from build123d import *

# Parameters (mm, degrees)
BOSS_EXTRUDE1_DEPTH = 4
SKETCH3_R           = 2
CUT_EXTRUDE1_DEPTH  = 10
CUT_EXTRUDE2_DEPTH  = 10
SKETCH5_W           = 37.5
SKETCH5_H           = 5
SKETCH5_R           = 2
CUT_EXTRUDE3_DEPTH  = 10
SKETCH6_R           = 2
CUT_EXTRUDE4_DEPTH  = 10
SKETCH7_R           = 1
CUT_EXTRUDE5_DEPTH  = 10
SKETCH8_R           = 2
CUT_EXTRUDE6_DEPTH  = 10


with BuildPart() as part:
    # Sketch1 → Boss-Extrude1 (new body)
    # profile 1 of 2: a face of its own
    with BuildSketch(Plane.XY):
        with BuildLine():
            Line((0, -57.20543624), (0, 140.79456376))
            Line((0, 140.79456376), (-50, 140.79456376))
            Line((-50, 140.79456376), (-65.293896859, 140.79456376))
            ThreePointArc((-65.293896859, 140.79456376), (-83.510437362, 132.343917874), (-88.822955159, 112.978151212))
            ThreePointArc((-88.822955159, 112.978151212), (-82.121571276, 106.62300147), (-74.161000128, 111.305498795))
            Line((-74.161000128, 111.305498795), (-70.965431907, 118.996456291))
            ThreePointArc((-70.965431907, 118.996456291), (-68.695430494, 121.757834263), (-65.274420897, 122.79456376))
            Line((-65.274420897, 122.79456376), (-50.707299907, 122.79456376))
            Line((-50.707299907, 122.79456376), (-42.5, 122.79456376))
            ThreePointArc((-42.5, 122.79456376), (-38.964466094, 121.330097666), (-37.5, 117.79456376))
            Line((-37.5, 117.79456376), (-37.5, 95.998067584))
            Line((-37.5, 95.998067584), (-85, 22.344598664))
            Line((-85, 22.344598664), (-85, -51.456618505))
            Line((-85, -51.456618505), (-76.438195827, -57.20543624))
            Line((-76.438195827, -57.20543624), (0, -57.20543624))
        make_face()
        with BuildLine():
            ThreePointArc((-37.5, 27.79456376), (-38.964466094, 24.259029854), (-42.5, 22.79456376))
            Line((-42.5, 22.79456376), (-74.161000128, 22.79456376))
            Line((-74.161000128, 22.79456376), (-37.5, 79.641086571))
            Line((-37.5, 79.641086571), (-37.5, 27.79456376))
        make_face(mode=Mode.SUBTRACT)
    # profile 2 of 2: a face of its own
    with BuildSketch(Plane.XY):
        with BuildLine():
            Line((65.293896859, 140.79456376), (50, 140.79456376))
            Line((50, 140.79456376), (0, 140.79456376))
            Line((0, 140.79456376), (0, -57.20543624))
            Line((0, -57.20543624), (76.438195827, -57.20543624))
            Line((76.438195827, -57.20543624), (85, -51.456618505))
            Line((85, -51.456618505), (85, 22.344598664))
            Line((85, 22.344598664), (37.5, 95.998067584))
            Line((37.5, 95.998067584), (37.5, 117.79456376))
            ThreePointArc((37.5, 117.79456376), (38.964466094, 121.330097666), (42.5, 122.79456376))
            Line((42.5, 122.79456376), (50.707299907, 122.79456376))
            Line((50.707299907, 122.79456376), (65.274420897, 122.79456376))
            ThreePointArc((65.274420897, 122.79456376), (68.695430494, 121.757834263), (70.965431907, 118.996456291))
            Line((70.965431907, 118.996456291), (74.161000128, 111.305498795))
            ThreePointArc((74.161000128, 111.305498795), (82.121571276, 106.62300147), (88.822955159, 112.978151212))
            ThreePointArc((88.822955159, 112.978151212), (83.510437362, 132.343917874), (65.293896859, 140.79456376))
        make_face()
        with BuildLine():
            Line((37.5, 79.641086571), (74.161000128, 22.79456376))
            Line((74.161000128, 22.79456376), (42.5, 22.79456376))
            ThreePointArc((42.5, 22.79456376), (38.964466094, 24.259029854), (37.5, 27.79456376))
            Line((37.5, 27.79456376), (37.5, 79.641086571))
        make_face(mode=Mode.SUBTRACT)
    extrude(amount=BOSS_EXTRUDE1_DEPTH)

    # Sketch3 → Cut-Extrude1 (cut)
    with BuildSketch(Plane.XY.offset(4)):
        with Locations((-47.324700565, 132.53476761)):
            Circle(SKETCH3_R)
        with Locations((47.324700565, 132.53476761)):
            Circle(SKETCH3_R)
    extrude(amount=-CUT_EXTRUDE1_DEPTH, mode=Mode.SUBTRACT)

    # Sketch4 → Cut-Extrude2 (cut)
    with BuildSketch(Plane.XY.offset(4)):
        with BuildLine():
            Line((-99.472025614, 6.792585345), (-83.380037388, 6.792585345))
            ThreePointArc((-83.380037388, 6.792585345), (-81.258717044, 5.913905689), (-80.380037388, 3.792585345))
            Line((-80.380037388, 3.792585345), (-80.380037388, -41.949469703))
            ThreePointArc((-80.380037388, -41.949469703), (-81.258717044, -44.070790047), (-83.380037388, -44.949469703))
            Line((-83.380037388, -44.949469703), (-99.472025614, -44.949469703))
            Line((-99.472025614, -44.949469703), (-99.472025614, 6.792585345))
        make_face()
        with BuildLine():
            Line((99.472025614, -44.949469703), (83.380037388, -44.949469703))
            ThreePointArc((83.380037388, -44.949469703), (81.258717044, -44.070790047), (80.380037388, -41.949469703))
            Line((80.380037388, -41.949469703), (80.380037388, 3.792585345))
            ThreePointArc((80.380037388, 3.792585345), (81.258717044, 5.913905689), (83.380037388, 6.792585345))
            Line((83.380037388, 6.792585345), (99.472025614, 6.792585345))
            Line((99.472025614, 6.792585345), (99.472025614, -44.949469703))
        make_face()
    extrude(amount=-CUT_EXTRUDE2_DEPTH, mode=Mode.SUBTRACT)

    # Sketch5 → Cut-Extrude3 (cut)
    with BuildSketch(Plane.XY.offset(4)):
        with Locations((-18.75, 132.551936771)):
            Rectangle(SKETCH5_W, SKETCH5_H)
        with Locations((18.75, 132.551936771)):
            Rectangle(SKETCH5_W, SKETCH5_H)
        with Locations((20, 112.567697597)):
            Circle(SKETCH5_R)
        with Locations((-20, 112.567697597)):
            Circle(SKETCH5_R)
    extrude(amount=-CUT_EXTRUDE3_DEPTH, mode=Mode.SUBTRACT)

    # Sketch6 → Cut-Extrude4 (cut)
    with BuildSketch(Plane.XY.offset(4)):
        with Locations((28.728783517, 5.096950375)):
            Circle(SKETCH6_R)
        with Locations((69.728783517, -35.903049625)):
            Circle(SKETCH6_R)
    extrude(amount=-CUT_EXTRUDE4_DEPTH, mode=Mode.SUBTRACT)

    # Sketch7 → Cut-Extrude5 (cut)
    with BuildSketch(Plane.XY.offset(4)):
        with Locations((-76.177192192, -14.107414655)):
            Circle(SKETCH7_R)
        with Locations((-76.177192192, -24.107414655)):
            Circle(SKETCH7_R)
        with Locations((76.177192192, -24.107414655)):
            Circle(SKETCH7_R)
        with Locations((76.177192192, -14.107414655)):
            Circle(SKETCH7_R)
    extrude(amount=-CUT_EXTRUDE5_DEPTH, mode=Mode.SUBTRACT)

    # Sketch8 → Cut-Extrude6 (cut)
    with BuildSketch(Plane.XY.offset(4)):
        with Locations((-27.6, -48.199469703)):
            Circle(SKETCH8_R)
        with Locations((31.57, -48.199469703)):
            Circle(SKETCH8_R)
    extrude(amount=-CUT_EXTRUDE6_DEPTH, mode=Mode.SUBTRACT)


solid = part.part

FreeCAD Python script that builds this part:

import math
import FreeCAD as App
import Part
import Sketcher
from FreeCAD import Vector

doc = App.newDocument("Part")
params = doc.addObject("Spreadsheet::Sheet", "Params")
for row, (alias, value) in enumerate([
    ("sketch1_radius", "5 mm"),
    ("pad1_length", "4 mm"),
    ("sketch2_diameter", "4 mm"),
    ("pocket1_length", "10 mm"),
    ("sketch3_radius", "3 mm"),
    ("pocket2_length", "10 mm"),
    ("sketch4_diameter", "4 mm"),
    ("sketch4_width", "75 mm"),
    ("sketch4_height", "5 mm"),
    ("pocket3_length", "10 mm"),
    ("sketch5_diameter", "4 mm"),
    ("pocket4_length", "10 mm"),
    ("sketch6_diameter", "2 mm"),
    ("pocket5_length", "10 mm"),
    ("sketch7_diameter", "4 mm"),
    ("pocket6_length", "10 mm"),
], start=1):
    params.set(f"A{row}", alias)
    params.set(f"B{row}", "=" + value)
    params.setAlias(f"B{row}", alias)

body = doc.addObject("PartDesign::Body", "Body")

sketch1 = doc.addObject("Sketcher::SketchObject", "Sketch")
body.addObject(sketch1)
sketch1.AttachmentSupport = (doc.XY_Plane, [""])
sketch1.MapMode = "FlatFace"
sketch1.addGeometry([
    Part.LineSegment(Vector(-76, -57, 0), Vector(76, -57, 0)),
    Part.LineSegment(Vector(76, -57, 0), Vector(85, -51, 0)),
    Part.LineSegment(Vector(85, -51, 0), Vector(85, 22, 0)),
    Part.LineSegment(Vector(85, 22, 0), Vector(38, 96, 0)),
    Part.LineSegment(Vector(38, 96, 0), Vector(38, 118, 0)),
    Part.ArcOfCircle(Part.Circle(Vector(42, 118, 0), Vector(0, 0, 1), 5), math.radians(90), math.radians(180)),
    Part.LineSegment(Vector(42, 123, 0), Vector(65, 123, 0)),
    Part.ArcOfCircle(Part.Circle(Vector(65, 117, 0), Vector(0, 0, 1), 6), math.radians(23), math.radians(90)),
    Part.LineSegment(Vector(71, 119, 0), Vector(74, 111, 0)),
    Part.ArcOfCircle(Part.Circle(Vector(81, 114, 0), Vector(0, 0, 1), 8), math.radians(-157), math.radians(-10)),
    Part.ArcOfCircle(Part.Circle(Vector(65, 117, 0), Vector(0, 0, 1), 24), math.radians(-10), math.radians(90)),
    Part.LineSegment(Vector(65, 141, 0), Vector(-65, 141, 0)),
    Part.ArcOfCircle(Part.Circle(Vector(-65, 117, 0), Vector(0, 0, 1), 24), math.radians(90), math.radians(190)),
    Part.ArcOfCircle(Part.Circle(Vector(-81, 114, 0), Vector(0, 0, 1), 8), math.radians(-170), math.radians(-23)),
    Part.LineSegment(Vector(-74, 111, 0), Vector(-71, 119, 0)),
    Part.ArcOfCircle(Part.Circle(Vector(-65, 117, 0), Vector(0, 0, 1), 6), math.radians(90), math.radians(157)),
    Part.LineSegment(Vector(-65, 123, 0), Vector(-42, 123, 0)),
    Part.ArcOfCircle(Part.Circle(Vector(-42, 118, 0), Vector(0, 0, 1), 5), math.radians(0), math.radians(90)),
    Part.LineSegment(Vector(-38, 118, 0), Vector(-38, 96, 0)),
    Part.LineSegment(Vector(-38, 96, 0), Vector(-85, 22, 0)),
    Part.LineSegment(Vector(-85, 22, 0), Vector(-85, -51, 0)),
    Part.LineSegment(Vector(-85, -51, 0), Vector(-76, -57, 0)),
    Part.LineSegment(Vector(-38, 80, 0), Vector(-38, 28, 0)),
    Part.ArcOfCircle(Part.Circle(Vector(-42, 28, 0), Vector(0, 0, 1), 5), math.radians(-90), math.radians(0)),
    Part.LineSegment(Vector(-42, 23, 0), Vector(-74, 23, 0)),
    Part.LineSegment(Vector(-74, 23, 0), Vector(-38, 80, 0)),
    Part.LineSegment(Vector(38, 80, 0), Vector(74, 23, 0)),
    Part.LineSegment(Vector(74, 23, 0), Vector(42, 23, 0)),
    Part.ArcOfCircle(Part.Circle(Vector(42, 28, 0), Vector(0, 0, 1), 5), math.radians(180), math.radians(270)),
    Part.LineSegment(Vector(38, 28, 0), Vector(38, 80, 0)),
], False)
sketch1.addConstraint([
    Sketcher.Constraint("Coincident", 0, 2, 1, 1),
    Sketcher.Constraint("Coincident", 1, 2, 2, 1),
    Sketcher.Constraint("Coincident", 2, 2, 3, 1),
    Sketcher.Constraint("Coincident", 3, 2, 4, 1),
    Sketcher.Constraint("Tangent", 4, 2, 5, 2),
    Sketcher.Constraint("Tangent", 5, 1, 6, 1),
    Sketcher.Constraint("Tangent", 6, 2, 7, 2),
    Sketcher.Constraint("Tangent", 7, 1, 8, 1),
    Sketcher.Constraint("Tangent", 8, 2, 9, 1),
    Sketcher.Constraint("Tangent", 9, 2, 10, 1),
    Sketcher.Constraint("Tangent", 10, 2, 11, 1),
    Sketcher.Constraint("Tangent", 11, 2, 12, 1),
    Sketcher.Constraint("Tangent", 12, 2, 13, 1),
    Sketcher.Constraint("Tangent", 13, 2, 14, 1),
    Sketcher.Constraint("Tangent", 14, 2, 15, 2),
    Sketcher.Constraint("Tangent", 15, 1, 16, 1),
    Sketcher.Constraint("Tangent", 16, 2, 17, 2),
    Sketcher.Constraint("Tangent", 17, 1, 18, 1),
    Sketcher.Constraint("Coincident", 18, 2, 19, 1),
    Sketcher.Constraint("Coincident", 19, 2, 20, 1),
    Sketcher.Constraint("Coincident", 20, 2, 21, 1),
    Sketcher.Constraint("Coincident", 21, 2, 0, 1),
    Sketcher.Constraint("Tangent", 22, 2, 23, 2),
    Sketcher.Constraint("Tangent", 23, 1, 24, 1),
    Sketcher.Constraint("Coincident", 24, 2, 25, 1),
    Sketcher.Constraint("Coincident", 25, 2, 22, 1),
    Sketcher.Constraint("Coincident", 26, 2, 27, 1),
    Sketcher.Constraint("Tangent", 27, 2, 28, 2),
    Sketcher.Constraint("Tangent", 28, 1, 29, 1),
    Sketcher.Constraint("Coincident", 29, 2, 26, 1),
    Sketcher.Constraint("Horizontal", 0),
    Sketcher.Constraint("Vertical", 2),
    Sketcher.Constraint("Vertical", 4),
    Sketcher.Constraint("Horizontal", 6),
    Sketcher.Constraint("Horizontal", 11),
    Sketcher.Constraint("Horizontal", 16),
    Sketcher.Constraint("Vertical", 18),
    Sketcher.Constraint("Vertical", 20),
    Sketcher.Constraint("Vertical", 22),
    Sketcher.Constraint("Horizontal", 24),
    Sketcher.Constraint("Horizontal", 27),
    Sketcher.Constraint("Vertical", 29),
    Sketcher.Constraint("Equal", 10, 12),
    Sketcher.Constraint("Equal", 9, 13),
    Sketcher.Constraint("Equal", 7, 15),
    Sketcher.Constraint("Equal", 5, 17),
    Sketcher.Constraint("Equal", 17, 23),
    Sketcher.Constraint("Equal", 23, 28),
    Sketcher.Constraint("Symmetric", 9, 3, 13, 3, -2),
    Sketcher.Constraint("Symmetric", 7, 3, 15, 3, -2),
    Sketcher.Constraint("Symmetric", 23, 3, 28, 3, -2),
    Sketcher.Constraint("Symmetric", 3, 2, 18, 2, -2),
    Sketcher.Constraint("Symmetric", 2, 2, 19, 2, -2),
    Sketcher.Constraint("Parallel", 19, 25),
    Sketcher.Constraint("Parallel", 3, 26),
    Sketcher.Constraint("Horizontal", 1, 2, 20, 2),
    Sketcher.Constraint("Horizontal", 25, 2, 29, 2),
    Sketcher.Constraint("Vertical", 17, 3, 23, 3),
    Sketcher.Constraint("Vertical", 13, 2, 24, 2),
    Sketcher.Constraint("Equal", 1, 21),
    Sketcher.Constraint("Radius", 5, 5.0),
    Sketcher.Constraint("DistanceX", -1, 1, 1, 2, 85.0),
    Sketcher.Constraint("DistanceX", 17, 3, 5, 3, 85.0),
    Sketcher.Constraint("DistanceY", 23, 3, 17, 3, 90.0),
    Sketcher.Constraint("DistanceY", 0, 2, 28, 3, 85.0),
    Sketcher.Constraint("DistanceY", 6, 2, 10, 2, 18.0),
    Sketcher.Constraint("DistanceX", 24, 2, 24, 1, 31.661),
    Sketcher.Constraint("Radius", 7, 6.162704),
    Sketcher.Constraint("Radius", 9, 7.677976),
    Sketcher.Constraint("Radius", 10, 23.859464),
    Sketcher.Constraint("DistanceY", 8, 2, 9, 3, 2.945998),
    Sketcher.Constraint("DistanceX", 0, 1, 0, 2, 152.876392),
    Sketcher.Constraint("DistanceX", 6, 1, 6, 2, 22.774421),
    Sketcher.Constraint("DistanceY", -1, 1, 10, 3, 116.9351),
    Sketcher.Constraint("DistanceY", -1, 1, 2, 2, 22.344599),
    Sketcher.Constraint("Distance", 1, 10.312778),
    Sketcher.Constraint("Distance", 3, 87.641791),
])
sketch1.setExpression("Constraints[60]", "Params.sketch1_radius")
pad1 = doc.addObject("PartDesign::Pad", "Pad")
body.addObject(pad1)
pad1.Profile = sketch1
pad1.setExpression("Length", "Params.pad1_length")

sketch2 = doc.addObject("Sketcher::SketchObject", "Sketch001")
body.addObject(sketch2)
sketch2.AttachmentSupport = (doc.XY_Plane, [""])
sketch2.MapMode = "FlatFace"
sketch2.AttachmentOffset = App.Placement(Vector(0, 0, 4), App.Rotation())
sketch2.addGeometry([
    Part.Circle(Vector(-47.3, 132.5, 0), Vector(0, 0, 1), 2),
    Part.Circle(Vector(47.3, 132.5, 0), Vector(0, 0, 1), 2),
], False)
sketch2.addConstraint([
    Sketcher.Constraint("Equal", 0, 1),
    Sketcher.Constraint("Symmetric", 0, 3, 1, 3, -2),
    Sketcher.Constraint("Diameter", 0, 4.0),
    Sketcher.Constraint("DistanceX", 0, 3, -1, 1, 47.324701),
    Sketcher.Constraint("DistanceY", -1, 1, 0, 3, 132.534768),
])
sketch2.setExpression("Constraints[2]", "Params.sketch2_diameter")
pocket1 = doc.addObject("PartDesign::Pocket", "Pocket")
body.addObject(pocket1)
pocket1.Profile = sketch2
pocket1.setExpression("Length", "Params.pocket1_length")

sketch3 = doc.addObject("Sketcher::SketchObject", "Sketch002")
body.addObject(sketch3)
sketch3.AttachmentSupport = (doc.XY_Plane, [""])
sketch3.MapMode = "FlatFace"
sketch3.AttachmentOffset = App.Placement(Vector(0, 0, 4), App.Rotation())
sketch3.addGeometry([
    Part.LineSegment(Vector(-83.4, 6.8, 0), Vector(-99.5, 6.8, 0)),
    Part.LineSegment(Vector(-99.5, 6.8, 0), Vector(-99.5, -44.9, 0)),
    Part.LineSegment(Vector(-99.5, -44.9, 0), Vector(-83.4, -44.9, 0)),
    Part.ArcOfCircle(Part.Circle(Vector(-83.4, -41.9, 0), Vector(0, 0, 1), 3), math.radians(-90), math.radians(0)),
    Part.LineSegment(Vector(-80.4, -41.9, 0), Vector(-80.4, 3.8, 0)),
    Part.ArcOfCircle(Part.Circle(Vector(-83.4, 3.8, 0), Vector(0, 0, 1), 3), math.radians(0), math.radians(90)),
    Part.LineSegment(Vector(83.4, -44.9, 0), Vector(99.5, -44.9, 0)),
    Part.LineSegment(Vector(99.5, -44.9, 0), Vector(99.5, 6.8, 0)),
    Part.LineSegment(Vector(99.5, 6.8, 0), Vector(83.4, 6.8, 0)),
    Part.ArcOfCircle(Part.Circle(Vector(83.4, 3.8, 0), Vector(0, 0, 1), 3), math.radians(90), math.radians(180)),
    Part.LineSegment(Vector(80.4, 3.8, 0), Vector(80.4, -41.9, 0)),
    Part.ArcOfCircle(Part.Circle(Vector(83.4, -41.9, 0), Vector(0, 0, 1), 3), math.radians(180), math.radians(270)),
], False)
sketch3.addConstraint([
    Sketcher.Constraint("Coincident", 0, 2, 1, 1),
    Sketcher.Constraint("Coincident", 1, 2, 2, 1),
    Sketcher.Constraint("Tangent", 2, 2, 3, 1),
    Sketcher.Constraint("Tangent", 3, 2, 4, 1),
    Sketcher.Constraint("Tangent", 4, 2, 5, 1),
    Sketcher.Constraint("Tangent", 5, 2, 0, 1),
    Sketcher.Constraint("Coincident", 6, 2, 7, 1),
    Sketcher.Constraint("Coincident", 7, 2, 8, 1),
    Sketcher.Constraint("Tangent", 8, 2, 9, 1),
    Sketcher.Constraint("Tangent", 9, 2, 10, 1),
    Sketcher.Constraint("Tangent", 10, 2, 11, 1),
    Sketcher.Constraint("Tangent", 11, 2, 6, 1),
    Sketcher.Constraint("Horizontal", 0),
    Sketcher.Constraint("Vertical", 1),
    Sketcher.Constraint("Horizontal", 2),
    Sketcher.Constraint("Vertical", 4),
    Sketcher.Constraint("Horizontal", 6),
    Sketcher.Constraint("Vertical", 7),
    Sketcher.Constraint("Horizontal", 8),
    Sketcher.Constraint("Vertical", 10),
    Sketcher.Constraint("Equal", 3, 5),
    Sketcher.Constraint("Equal", 5, 9),
    Sketcher.Constraint("Equal", 9, 11),
    Sketcher.Constraint("Symmetric", 5, 3, 9, 3, -2),
    Sketcher.Constraint("Symmetric", 1, 2, 6, 2, -2),
    Sketcher.Constraint("Radius", 3, 3.0),
    Sketcher.Constraint("DistanceX", 0, 2, 0, 1, 16.091988),
    Sketcher.Constraint("DistanceY", 1, 2, 1, 1, 51.742055),
    Sketcher.Constraint("DistanceY", 3, 3, -1, 1, 41.94947),
    Sketcher.Constraint("DistanceX", 3, 3, -1, 1, 83.380037),
])
sketch3.setExpression("Constraints[25]", "Params.sketch3_radius")
pocket2 = doc.addObject("PartDesign::Pocket", "Pocket001")
body.addObject(pocket2)
pocket2.Profile = sketch3
pocket2.setExpression("Length", "Params.pocket2_length")

sketch4 = doc.addObject("Sketcher::SketchObject", "Sketch003")
body.addObject(sketch4)
sketch4.AttachmentSupport = (doc.XY_Plane, [""])
sketch4.MapMode = "FlatFace"
sketch4.AttachmentOffset = App.Placement(Vector(0, 0, 4), App.Rotation())
sketch4.addGeometry([
    Part.LineSegment(Vector(-37.5, 135.1, 0), Vector(-37.5, 130.1, 0)),
    Part.LineSegment(Vector(-37.5, 130.1, 0), Vector(37.5, 130.1, 0)),
    Part.LineSegment(Vector(37.5, 130.1, 0), Vector(37.5, 135.1, 0)),
    Part.LineSegment(Vector(37.5, 135.1, 0), Vector(-37.5, 135.1, 0)),
    Part.Circle(Vector(20, 112.6, 0), Vector(0, 0, 1), 2),
    Part.Circle(Vector(-20, 112.6, 0), Vector(0, 0, 1), 2),
], False)
sketch4.addConstraint([
    Sketcher.Constraint("Coincident", 0, 2, 1, 1),
    Sketcher.Constraint("Coincident", 1, 2, 2, 1),
    Sketcher.Constraint("Coincident", 2, 2, 3, 1),
    Sketcher.Constraint("Coincident", 3, 2, 0, 1),
    Sketcher.Constraint("Vertical", 0),
    Sketcher.Constraint("Horizontal", 1),
    Sketcher.Constraint("Vertical", 2),
    Sketcher.Constraint("Horizontal", 3),
    Sketcher.Constraint("Equal", 4, 5),
    Sketcher.Constraint("Symmetric", 4, 3, 5, 3, -2),
    Sketcher.Constraint("Diameter", 4, 4.0),
    Sketcher.Constraint("DistanceX", 1, 1, 1, 2, 75.0),
    Sketcher.Constraint("DistanceY", 0, 2, 0, 1, 5.0),
    Sketcher.Constraint("DistanceX", -1, 1, 4, 3, 20.0),
    Sketcher.Constraint("DistanceX", 0, 2, -1, 1, 37.5),
    Sketcher.Constraint("DistanceY", 5, 3, 0, 2, 17.484239),
    Sketcher.Constraint("DistanceY", -1, 1, 4, 3, 112.567698),
])
sketch4.setExpression("Constraints[10]", "Params.sketch4_diameter")
sketch4.setExpression("Constraints[11]", "Params.sketch4_width")
sketch4.setExpression("Constraints[12]", "Params.sketch4_height")
pocket3 = doc.addObject("PartDesign::Pocket", "Pocket002")
body.addObject(pocket3)
pocket3.Profile = sketch4
pocket3.setExpression("Length", "Params.pocket3_length")

sketch5 = doc.addObject("Sketcher::SketchObject", "Sketch004")
body.addObject(sketch5)
sketch5.AttachmentSupport = (doc.XY_Plane, [""])
sketch5.MapMode = "FlatFace"
sketch5.AttachmentOffset = App.Placement(Vector(0, 0, 4), App.Rotation())
sketch5.addGeometry([
    Part.Circle(Vector(28.7, 5.1, 0), Vector(0, 0, 1), 2),
    Part.Circle(Vector(69.7, -35.9, 0), Vector(0, 0, 1), 2),
], False)
sketch5.addConstraint([
    Sketcher.Constraint("Equal", 0, 1),
    Sketcher.Constraint("Diameter", 0, 4.0),
    Sketcher.Constraint("DistanceX", 0, 3, 1, 3, 41.0),
    Sketcher.Constraint("DistanceY", 1, 3, 0, 3, 41.0),
    Sketcher.Constraint("DistanceY", -1, 1, 0, 3, 5.09695),
    Sketcher.Constraint("DistanceX", -1, 1, 0, 3, 28.728784),
])
sketch5.setExpression("Constraints[1]", "Params.sketch5_diameter")
pocket4 = doc.addObject("PartDesign::Pocket", "Pocket003")
body.addObject(pocket4)
pocket4.Profile = sketch5
pocket4.setExpression("Length", "Params.pocket4_length")

sketch6 = doc.addObject("Sketcher::SketchObject", "Sketch005")
body.addObject(sketch6)
sketch6.AttachmentSupport = (doc.XY_Plane, [""])
sketch6.MapMode = "FlatFace"
sketch6.AttachmentOffset = App.Placement(Vector(0, 0, 4), App.Rotation())
sketch6.addGeometry([
    Part.Circle(Vector(-76.2, -14.1, 0), Vector(0, 0, 1), 1),
    Part.Circle(Vector(-76.2, -24.1, 0), Vector(0, 0, 1), 1),
    Part.Circle(Vector(76.2, -24.1, 0), Vector(0, 0, 1), 1),
    Part.Circle(Vector(76.2, -14.1, 0), Vector(0, 0, 1), 1),
], False)
sketch6.addConstraint([
    Sketcher.Constraint("Equal", 0, 1),
    Sketcher.Constraint("Equal", 1, 2),
    Sketcher.Constraint("Equal", 2, 3),
    Sketcher.Constraint("Symmetric", 1, 3, 2, 3, -2),
    Sketcher.Constraint("Symmetric", 0, 3, 3, 3, -2),
    Sketcher.Constraint("Vertical", 0, 3, 1, 3),
    Sketcher.Constraint("Diameter", 0, 2.0),
    Sketcher.Constraint("DistanceY", 1, 3, 0, 3, 10.0),
    Sketcher.Constraint("DistanceX", 0, 3, -1, 1, 76.177192),
    Sketcher.Constraint("DistanceY", 0, 3, -1, 1, 14.107415),
])
sketch6.setExpression("Constraints[6]", "Params.sketch6_diameter")
pocket5 = doc.addObject("PartDesign::Pocket", "Pocket004")
body.addObject(pocket5)
pocket5.Profile = sketch6
pocket5.setExpression("Length", "Params.pocket5_length")

sketch7 = doc.addObject("Sketcher::SketchObject", "Sketch006")
body.addObject(sketch7)
sketch7.AttachmentSupport = (doc.XY_Plane, [""])
sketch7.MapMode = "FlatFace"
sketch7.AttachmentOffset = App.Placement(Vector(0, 0, 4), App.Rotation())
sketch7.addGeometry([
    Part.Circle(Vector(-27.6, -48.2, 0), Vector(0, 0, 1), 2),
    Part.Circle(Vector(31.6, -48.2, 0), Vector(0, 0, 1), 2),
], False)
sketch7.addConstraint([
    Sketcher.Constraint("Equal", 0, 1),
    Sketcher.Constraint("Horizontal", 0, 3, 1, 3),
    Sketcher.Constraint("Diameter", 0, 4.0),
    Sketcher.Constraint("DistanceX", 0, 3, -1, 1, 27.6),
    Sketcher.Constraint("DistanceX", -1, 1, 1, 3, 31.57),
    Sketcher.Constraint("DistanceY", 0, 3, -1, 1, 48.19947),
])
sketch7.setExpression("Constraints[2]", "Params.sketch7_diameter")
pocket6 = doc.addObject("PartDesign::Pocket", "Pocket005")
body.addObject(pocket6)
pocket6.Profile = sketch7
pocket6.setExpression("Length", "Params.pocket6_length")

doc.recompute()
